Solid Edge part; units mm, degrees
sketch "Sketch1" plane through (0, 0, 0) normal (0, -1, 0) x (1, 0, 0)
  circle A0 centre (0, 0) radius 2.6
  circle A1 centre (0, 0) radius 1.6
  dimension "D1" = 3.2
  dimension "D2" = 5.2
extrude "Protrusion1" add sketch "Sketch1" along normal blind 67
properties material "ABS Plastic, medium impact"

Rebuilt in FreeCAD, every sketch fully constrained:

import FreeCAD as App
import Part
import Sketcher
from FreeCAD import Vector

doc = App.newDocument("Part")
params = doc.addObject("Spreadsheet::Sheet", "Params")
for row, (alias, value) in enumerate([
    ("sketch1_diameter", "5.2 mm"),
    ("sketch1_diameter2", "3.2 mm"),
    ("pad1_length", "67 mm"),
], start=1):
    params.set(f"A{row}", alias)
    params.set(f"B{row}", "=" + value)
    params.setAlias(f"B{row}", alias)

body = doc.addObject("PartDesign::Body", "Body")

sketch1 = body.newObject("Sketcher::SketchObject", "Sketch")
sketch1.AttachmentSupport = (doc.getObject("XZ_Plane"), [""])
sketch1.MapMode = "FlatFace"
sketch1.addGeometry([
    Part.Circle(Vector(0, 0, 0), Vector(0, 0, 1), 2.6),
    Part.Circle(Vector(0, 0, 0), Vector(0, 0, 1), 1.6),
], False)
sketch1.addConstraint([
    Sketcher.Constraint("Coincident", 0, 3, -1, 1),
    Sketcher.Constraint("Coincident", 1, 3, -1, 1),
    Sketcher.Constraint("Diameter", 0, 5.2),
    Sketcher.Constraint("Diameter", 1, 3.2),
])
sketch1.setExpression("Constraints[2]", "Params.sketch1_diameter")
sketch1.setExpression("Constraints[3]", "Params.sketch1_diameter2")
pad1 = body.newObject("PartDesign::Pad", "Pad")
pad1.Profile = sketch1
pad1.setExpression("Length", "Params.pad1_length")

doc.recompute()
